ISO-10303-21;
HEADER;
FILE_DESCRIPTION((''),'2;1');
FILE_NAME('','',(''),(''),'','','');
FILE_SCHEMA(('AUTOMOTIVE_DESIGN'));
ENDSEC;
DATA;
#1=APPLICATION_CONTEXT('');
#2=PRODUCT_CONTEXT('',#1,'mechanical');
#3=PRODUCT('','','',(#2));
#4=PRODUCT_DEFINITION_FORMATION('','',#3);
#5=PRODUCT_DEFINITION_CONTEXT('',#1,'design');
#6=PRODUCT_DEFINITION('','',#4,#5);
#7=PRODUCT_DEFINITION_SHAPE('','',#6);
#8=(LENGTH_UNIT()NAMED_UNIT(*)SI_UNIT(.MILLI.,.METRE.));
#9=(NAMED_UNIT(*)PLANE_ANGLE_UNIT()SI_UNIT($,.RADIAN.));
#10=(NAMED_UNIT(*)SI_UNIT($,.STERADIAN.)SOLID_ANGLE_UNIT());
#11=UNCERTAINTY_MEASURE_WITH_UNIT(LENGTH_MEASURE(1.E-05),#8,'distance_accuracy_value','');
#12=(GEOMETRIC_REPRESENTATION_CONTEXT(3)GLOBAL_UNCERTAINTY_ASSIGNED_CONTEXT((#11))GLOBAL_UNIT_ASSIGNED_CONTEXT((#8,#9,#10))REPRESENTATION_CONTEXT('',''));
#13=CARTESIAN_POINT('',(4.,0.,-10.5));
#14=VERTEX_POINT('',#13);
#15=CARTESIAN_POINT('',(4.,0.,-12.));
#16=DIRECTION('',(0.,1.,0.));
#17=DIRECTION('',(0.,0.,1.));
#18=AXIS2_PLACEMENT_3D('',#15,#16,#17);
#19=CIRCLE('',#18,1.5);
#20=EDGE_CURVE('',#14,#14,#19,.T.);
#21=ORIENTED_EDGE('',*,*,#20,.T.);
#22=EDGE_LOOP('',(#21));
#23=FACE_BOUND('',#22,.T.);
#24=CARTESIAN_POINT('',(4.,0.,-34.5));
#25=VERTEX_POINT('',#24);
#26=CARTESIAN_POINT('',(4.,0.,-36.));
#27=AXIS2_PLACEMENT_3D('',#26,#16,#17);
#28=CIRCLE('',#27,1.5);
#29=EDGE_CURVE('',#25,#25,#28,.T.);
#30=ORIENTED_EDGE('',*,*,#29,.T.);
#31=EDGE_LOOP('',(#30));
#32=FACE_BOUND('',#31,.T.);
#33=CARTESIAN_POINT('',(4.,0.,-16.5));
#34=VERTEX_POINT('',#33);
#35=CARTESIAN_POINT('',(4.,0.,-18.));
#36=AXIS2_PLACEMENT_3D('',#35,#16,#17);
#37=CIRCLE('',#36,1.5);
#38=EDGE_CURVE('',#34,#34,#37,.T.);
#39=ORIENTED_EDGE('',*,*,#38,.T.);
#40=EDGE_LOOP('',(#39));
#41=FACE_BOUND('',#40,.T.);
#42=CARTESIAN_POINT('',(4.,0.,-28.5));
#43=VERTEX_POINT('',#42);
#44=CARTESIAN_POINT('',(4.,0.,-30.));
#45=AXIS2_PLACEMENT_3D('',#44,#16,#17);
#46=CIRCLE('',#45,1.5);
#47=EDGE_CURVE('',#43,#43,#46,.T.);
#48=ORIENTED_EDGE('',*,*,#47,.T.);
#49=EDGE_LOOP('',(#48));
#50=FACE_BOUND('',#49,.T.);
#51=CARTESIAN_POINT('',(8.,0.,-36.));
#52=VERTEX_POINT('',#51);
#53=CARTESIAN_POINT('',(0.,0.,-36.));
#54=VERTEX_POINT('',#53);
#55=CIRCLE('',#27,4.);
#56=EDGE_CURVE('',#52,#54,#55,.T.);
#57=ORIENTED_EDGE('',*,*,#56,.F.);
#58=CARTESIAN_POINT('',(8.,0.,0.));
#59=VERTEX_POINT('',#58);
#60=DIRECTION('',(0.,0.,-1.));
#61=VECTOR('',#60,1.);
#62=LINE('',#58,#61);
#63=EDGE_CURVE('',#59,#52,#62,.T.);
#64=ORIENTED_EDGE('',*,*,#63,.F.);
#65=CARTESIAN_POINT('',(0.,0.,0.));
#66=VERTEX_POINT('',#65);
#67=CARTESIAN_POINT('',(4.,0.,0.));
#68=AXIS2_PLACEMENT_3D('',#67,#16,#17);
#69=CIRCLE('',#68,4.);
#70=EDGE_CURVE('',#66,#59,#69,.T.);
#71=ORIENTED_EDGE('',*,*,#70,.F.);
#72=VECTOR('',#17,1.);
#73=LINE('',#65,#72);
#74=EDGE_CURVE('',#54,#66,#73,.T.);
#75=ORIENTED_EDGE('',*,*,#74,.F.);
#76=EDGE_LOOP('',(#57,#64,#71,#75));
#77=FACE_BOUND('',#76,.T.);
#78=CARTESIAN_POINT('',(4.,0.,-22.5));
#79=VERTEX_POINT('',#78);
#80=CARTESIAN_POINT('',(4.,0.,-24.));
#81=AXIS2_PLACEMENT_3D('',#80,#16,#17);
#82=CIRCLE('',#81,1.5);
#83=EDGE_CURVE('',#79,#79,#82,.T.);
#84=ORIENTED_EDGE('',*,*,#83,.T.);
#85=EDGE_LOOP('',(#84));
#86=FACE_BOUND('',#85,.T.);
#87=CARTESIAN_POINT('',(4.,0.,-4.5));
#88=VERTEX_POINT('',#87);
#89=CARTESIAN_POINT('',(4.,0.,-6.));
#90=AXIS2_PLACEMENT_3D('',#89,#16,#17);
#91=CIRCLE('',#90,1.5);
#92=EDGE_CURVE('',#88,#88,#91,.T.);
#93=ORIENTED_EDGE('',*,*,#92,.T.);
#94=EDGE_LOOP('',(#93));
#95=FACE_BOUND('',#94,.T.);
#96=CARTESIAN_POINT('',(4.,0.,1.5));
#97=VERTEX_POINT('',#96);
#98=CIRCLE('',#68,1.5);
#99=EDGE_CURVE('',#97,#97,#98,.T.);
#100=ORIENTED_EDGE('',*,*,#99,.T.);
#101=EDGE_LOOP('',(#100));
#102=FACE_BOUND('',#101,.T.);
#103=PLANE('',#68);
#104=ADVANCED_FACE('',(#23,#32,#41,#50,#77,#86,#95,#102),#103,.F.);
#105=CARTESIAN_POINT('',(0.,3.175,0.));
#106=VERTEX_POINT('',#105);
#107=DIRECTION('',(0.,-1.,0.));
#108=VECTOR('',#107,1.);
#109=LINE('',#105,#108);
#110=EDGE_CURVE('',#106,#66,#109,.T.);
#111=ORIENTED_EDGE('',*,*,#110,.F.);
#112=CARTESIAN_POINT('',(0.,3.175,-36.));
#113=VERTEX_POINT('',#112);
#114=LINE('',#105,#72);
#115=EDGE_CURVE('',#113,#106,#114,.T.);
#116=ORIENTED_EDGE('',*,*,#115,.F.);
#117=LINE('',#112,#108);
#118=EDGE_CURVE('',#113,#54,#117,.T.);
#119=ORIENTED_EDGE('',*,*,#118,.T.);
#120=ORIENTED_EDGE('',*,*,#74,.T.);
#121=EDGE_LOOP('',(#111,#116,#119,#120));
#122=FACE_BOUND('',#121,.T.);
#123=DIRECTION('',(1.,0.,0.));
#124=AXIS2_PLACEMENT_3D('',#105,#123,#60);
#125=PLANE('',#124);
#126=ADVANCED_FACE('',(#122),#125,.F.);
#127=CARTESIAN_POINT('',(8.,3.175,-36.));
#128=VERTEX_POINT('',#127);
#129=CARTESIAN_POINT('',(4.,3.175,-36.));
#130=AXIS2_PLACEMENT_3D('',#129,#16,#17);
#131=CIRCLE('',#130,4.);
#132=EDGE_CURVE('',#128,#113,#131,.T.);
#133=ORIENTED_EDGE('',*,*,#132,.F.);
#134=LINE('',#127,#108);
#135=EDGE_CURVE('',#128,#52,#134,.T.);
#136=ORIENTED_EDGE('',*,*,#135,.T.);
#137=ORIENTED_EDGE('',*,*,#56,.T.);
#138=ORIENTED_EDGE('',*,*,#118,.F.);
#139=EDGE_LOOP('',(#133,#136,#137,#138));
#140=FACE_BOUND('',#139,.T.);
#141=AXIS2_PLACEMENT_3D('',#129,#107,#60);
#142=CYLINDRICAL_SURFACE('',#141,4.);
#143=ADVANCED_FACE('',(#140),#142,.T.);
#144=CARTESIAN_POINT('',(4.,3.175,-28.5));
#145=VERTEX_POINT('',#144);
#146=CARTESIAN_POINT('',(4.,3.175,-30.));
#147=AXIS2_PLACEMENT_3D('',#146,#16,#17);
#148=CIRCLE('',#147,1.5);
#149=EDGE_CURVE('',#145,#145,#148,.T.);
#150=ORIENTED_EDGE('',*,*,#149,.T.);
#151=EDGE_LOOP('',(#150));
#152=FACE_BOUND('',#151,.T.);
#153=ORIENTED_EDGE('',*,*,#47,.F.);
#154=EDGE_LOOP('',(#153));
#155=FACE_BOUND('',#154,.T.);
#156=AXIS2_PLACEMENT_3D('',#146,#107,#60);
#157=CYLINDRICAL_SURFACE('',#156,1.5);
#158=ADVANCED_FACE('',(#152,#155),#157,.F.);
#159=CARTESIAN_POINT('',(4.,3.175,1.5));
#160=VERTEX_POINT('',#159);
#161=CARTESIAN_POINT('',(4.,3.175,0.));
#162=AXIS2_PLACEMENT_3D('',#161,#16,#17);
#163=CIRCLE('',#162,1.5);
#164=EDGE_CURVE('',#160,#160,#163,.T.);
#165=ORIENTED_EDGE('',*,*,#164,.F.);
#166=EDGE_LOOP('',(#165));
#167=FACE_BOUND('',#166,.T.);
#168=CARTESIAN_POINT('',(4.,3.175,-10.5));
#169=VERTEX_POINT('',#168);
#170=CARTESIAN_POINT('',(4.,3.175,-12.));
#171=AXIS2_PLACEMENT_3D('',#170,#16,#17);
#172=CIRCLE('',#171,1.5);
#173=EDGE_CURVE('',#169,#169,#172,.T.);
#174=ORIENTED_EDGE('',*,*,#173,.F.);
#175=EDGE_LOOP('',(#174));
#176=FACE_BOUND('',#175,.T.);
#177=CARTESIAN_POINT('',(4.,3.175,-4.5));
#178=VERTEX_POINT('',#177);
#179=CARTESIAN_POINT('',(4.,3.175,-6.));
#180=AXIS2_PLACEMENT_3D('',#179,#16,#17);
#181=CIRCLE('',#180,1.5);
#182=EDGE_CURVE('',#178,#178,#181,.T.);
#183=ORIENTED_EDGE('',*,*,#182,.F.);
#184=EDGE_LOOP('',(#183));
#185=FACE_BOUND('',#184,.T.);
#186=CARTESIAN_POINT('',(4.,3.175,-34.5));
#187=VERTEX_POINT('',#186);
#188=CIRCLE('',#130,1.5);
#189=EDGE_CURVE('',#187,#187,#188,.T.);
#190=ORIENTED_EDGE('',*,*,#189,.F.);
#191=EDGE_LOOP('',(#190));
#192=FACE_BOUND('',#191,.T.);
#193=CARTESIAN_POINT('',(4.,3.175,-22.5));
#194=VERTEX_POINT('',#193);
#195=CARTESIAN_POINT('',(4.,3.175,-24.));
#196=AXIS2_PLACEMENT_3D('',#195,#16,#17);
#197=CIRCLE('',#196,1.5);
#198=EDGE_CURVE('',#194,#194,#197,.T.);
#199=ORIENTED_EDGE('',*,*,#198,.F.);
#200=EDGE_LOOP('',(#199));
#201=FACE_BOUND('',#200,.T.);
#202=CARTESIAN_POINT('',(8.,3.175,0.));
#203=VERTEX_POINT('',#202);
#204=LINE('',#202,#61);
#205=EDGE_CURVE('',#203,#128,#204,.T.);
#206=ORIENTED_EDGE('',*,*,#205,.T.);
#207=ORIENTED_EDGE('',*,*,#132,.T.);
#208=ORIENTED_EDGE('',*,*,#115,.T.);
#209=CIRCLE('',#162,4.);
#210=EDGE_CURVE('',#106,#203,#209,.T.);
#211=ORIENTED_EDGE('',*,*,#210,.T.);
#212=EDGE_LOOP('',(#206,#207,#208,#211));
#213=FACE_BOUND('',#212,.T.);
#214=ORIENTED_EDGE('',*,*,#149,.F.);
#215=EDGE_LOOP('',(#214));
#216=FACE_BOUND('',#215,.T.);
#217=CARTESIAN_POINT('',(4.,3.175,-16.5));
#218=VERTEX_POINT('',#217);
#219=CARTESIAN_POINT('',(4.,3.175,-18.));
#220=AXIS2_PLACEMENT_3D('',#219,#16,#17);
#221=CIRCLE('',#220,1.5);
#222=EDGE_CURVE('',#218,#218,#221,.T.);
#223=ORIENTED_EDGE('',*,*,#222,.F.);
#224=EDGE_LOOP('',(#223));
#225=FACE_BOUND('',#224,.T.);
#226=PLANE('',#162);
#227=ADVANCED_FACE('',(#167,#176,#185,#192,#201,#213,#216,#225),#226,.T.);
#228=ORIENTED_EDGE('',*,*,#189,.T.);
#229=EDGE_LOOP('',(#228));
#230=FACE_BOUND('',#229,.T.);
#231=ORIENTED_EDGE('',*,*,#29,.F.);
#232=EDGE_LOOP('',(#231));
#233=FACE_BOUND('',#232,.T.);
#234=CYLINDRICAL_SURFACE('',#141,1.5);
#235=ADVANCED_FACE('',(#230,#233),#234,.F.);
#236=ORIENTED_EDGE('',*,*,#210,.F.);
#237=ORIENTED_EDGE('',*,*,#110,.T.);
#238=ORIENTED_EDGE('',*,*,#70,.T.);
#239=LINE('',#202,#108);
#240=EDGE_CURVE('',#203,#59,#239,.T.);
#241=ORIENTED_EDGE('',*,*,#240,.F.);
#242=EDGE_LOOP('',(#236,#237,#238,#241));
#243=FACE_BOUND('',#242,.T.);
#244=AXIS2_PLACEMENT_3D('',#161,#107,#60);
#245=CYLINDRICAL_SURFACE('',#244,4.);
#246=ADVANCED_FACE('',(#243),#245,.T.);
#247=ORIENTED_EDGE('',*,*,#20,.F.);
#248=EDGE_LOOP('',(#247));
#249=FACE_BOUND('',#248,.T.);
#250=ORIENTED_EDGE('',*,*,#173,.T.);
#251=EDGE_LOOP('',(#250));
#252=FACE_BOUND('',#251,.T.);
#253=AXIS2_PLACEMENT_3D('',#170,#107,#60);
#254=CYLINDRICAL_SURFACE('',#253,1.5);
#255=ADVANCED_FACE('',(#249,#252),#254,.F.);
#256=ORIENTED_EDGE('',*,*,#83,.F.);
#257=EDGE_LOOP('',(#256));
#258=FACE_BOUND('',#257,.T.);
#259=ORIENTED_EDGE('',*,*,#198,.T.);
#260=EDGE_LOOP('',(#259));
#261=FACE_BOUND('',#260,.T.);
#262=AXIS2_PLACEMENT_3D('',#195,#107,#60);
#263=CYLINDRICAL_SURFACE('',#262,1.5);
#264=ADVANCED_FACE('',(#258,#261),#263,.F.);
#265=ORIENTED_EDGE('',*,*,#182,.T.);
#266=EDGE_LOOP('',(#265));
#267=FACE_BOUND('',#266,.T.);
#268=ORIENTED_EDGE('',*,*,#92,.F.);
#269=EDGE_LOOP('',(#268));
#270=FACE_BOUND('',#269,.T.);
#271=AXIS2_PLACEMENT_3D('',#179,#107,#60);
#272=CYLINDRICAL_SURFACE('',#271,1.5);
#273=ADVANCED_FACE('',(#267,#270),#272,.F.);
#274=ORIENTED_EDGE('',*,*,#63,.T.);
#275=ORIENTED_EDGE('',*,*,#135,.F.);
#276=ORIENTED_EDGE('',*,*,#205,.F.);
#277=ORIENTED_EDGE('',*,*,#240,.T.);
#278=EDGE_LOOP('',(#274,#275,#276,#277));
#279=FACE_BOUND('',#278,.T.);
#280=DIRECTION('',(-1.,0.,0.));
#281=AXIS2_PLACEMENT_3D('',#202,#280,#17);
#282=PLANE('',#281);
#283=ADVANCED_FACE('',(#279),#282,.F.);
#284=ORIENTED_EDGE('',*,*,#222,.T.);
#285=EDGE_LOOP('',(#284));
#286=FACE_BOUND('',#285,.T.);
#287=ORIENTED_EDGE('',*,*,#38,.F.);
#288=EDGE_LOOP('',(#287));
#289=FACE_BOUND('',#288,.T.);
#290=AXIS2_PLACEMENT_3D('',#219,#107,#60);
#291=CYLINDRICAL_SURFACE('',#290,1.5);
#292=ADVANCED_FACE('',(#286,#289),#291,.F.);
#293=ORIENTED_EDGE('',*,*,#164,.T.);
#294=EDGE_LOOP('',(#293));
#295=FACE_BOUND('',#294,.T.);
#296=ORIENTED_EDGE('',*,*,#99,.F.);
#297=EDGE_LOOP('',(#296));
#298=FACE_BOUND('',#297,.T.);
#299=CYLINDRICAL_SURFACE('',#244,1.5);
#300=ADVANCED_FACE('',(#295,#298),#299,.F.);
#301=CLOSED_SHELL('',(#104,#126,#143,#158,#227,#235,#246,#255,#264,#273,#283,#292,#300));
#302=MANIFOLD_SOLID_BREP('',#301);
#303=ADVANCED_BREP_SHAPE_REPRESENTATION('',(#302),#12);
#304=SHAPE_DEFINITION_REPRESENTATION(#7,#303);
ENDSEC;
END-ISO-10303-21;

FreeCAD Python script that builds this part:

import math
import FreeCAD as App
import Part
import Sketcher
from FreeCAD import Vector

doc = App.newDocument("Part")
body = doc.addObject("PartDesign::Body", "Body")

# Sketch on XZ plane
sketch1 = body.newObject("Sketcher::SketchObject", "Sketch")
sketch1.AttachmentSupport = (doc.getObject("XZ_Plane"), [""])
sketch1.MapMode = "FlatFace"
sketch1.addGeometry([
    Part.LineSegment(Vector(0, -36, 0), Vector(0, 0, 0)),  # 0
    Part.ArcOfCircle(Part.Circle(Vector(4, 0, 0), Vector(0, 0, 1), 4), math.radians(0), math.radians(180)),  # 1
    Part.LineSegment(Vector(8, 0, 0), Vector(8, -36, 0)),  # 2
    Part.ArcOfCircle(Part.Circle(Vector(4, -36, 0), Vector(0, 0, 1), 4), math.radians(180), math.radians(360)),  # 3
    Part.Circle(Vector(4, 0, 0), Vector(0, 0, 1), 1.5),  # 4
    Part.Circle(Vector(4, -6, 0), Vector(0, 0, 1), 1.5),  # 5
    Part.Circle(Vector(4, -12, 0), Vector(0, 0, 1), 1.5),  # 6
    Part.Circle(Vector(4, -18, 0), Vector(0, 0, 1), 1.5),  # 7
    Part.Circle(Vector(4, -24, 0), Vector(0, 0, 1), 1.5),  # 8
    Part.Circle(Vector(4, -30, 0), Vector(0, 0, 1), 1.5),  # 9
    Part.Circle(Vector(4, -36, 0), Vector(0, 0, 1), 1.5),  # 10
], False)
sketch1.addConstraint([
    Sketcher.Constraint("Tangent", 0, 2, 1, 2),
    Sketcher.Constraint("Tangent", 1, 1, 2, 1),
    Sketcher.Constraint("Tangent", 2, 2, 3, 2),
    Sketcher.Constraint("Tangent", 3, 1, 0, 1),
    Sketcher.Constraint("Vertical", 0),
    Sketcher.Constraint("Vertical", 2),
    Sketcher.Constraint("Coincident", 0, 2, -1, 1),
    Sketcher.Constraint("Coincident", 4, 3, 1, 3),
    Sketcher.Constraint("Coincident", 10, 3, 3, 3),
    Sketcher.Constraint("Equal", 4, 5),
    Sketcher.Constraint("Equal", 5, 6),
    Sketcher.Constraint("Equal", 6, 7),
    Sketcher.Constraint("Equal", 7, 8),
    Sketcher.Constraint("Equal", 8, 9),
    Sketcher.Constraint("Equal", 9, 10),
    Sketcher.Constraint("Vertical", 4, 3, 5, 3),
    Sketcher.Constraint("Vertical", 5, 3, 6, 3),
    Sketcher.Constraint("Vertical", 6, 3, 7, 3),
    Sketcher.Constraint("Vertical", 7, 3, 8, 3),
    Sketcher.Constraint("Vertical", 8, 3, 9, 3),
    Sketcher.Constraint("Diameter", 4, 3.0),
    Sketcher.Constraint("Radius", 1, 4.0),
    Sketcher.Constraint("DistanceY", 0, 1, 0, 2, 36.0),
    Sketcher.Constraint("DistanceY", 5, 3, -1, 1, 6.0),
    Sketcher.Constraint("DistanceY", 6, 3, -1, 1, 12.0),
    Sketcher.Constraint("DistanceY", 7, 3, -1, 1, 18.0),
    Sketcher.Constraint("DistanceY", 8, 3, -1, 1, 24.0),
    Sketcher.Constraint("DistanceY", 9, 3, -1, 1, 30.0),
])
pad1 = body.newObject("PartDesign::Pad", "Pad")
pad1.Profile = sketch1
pad1.Length = 3.175
pad1.Reversed = True

doc.recompute()
